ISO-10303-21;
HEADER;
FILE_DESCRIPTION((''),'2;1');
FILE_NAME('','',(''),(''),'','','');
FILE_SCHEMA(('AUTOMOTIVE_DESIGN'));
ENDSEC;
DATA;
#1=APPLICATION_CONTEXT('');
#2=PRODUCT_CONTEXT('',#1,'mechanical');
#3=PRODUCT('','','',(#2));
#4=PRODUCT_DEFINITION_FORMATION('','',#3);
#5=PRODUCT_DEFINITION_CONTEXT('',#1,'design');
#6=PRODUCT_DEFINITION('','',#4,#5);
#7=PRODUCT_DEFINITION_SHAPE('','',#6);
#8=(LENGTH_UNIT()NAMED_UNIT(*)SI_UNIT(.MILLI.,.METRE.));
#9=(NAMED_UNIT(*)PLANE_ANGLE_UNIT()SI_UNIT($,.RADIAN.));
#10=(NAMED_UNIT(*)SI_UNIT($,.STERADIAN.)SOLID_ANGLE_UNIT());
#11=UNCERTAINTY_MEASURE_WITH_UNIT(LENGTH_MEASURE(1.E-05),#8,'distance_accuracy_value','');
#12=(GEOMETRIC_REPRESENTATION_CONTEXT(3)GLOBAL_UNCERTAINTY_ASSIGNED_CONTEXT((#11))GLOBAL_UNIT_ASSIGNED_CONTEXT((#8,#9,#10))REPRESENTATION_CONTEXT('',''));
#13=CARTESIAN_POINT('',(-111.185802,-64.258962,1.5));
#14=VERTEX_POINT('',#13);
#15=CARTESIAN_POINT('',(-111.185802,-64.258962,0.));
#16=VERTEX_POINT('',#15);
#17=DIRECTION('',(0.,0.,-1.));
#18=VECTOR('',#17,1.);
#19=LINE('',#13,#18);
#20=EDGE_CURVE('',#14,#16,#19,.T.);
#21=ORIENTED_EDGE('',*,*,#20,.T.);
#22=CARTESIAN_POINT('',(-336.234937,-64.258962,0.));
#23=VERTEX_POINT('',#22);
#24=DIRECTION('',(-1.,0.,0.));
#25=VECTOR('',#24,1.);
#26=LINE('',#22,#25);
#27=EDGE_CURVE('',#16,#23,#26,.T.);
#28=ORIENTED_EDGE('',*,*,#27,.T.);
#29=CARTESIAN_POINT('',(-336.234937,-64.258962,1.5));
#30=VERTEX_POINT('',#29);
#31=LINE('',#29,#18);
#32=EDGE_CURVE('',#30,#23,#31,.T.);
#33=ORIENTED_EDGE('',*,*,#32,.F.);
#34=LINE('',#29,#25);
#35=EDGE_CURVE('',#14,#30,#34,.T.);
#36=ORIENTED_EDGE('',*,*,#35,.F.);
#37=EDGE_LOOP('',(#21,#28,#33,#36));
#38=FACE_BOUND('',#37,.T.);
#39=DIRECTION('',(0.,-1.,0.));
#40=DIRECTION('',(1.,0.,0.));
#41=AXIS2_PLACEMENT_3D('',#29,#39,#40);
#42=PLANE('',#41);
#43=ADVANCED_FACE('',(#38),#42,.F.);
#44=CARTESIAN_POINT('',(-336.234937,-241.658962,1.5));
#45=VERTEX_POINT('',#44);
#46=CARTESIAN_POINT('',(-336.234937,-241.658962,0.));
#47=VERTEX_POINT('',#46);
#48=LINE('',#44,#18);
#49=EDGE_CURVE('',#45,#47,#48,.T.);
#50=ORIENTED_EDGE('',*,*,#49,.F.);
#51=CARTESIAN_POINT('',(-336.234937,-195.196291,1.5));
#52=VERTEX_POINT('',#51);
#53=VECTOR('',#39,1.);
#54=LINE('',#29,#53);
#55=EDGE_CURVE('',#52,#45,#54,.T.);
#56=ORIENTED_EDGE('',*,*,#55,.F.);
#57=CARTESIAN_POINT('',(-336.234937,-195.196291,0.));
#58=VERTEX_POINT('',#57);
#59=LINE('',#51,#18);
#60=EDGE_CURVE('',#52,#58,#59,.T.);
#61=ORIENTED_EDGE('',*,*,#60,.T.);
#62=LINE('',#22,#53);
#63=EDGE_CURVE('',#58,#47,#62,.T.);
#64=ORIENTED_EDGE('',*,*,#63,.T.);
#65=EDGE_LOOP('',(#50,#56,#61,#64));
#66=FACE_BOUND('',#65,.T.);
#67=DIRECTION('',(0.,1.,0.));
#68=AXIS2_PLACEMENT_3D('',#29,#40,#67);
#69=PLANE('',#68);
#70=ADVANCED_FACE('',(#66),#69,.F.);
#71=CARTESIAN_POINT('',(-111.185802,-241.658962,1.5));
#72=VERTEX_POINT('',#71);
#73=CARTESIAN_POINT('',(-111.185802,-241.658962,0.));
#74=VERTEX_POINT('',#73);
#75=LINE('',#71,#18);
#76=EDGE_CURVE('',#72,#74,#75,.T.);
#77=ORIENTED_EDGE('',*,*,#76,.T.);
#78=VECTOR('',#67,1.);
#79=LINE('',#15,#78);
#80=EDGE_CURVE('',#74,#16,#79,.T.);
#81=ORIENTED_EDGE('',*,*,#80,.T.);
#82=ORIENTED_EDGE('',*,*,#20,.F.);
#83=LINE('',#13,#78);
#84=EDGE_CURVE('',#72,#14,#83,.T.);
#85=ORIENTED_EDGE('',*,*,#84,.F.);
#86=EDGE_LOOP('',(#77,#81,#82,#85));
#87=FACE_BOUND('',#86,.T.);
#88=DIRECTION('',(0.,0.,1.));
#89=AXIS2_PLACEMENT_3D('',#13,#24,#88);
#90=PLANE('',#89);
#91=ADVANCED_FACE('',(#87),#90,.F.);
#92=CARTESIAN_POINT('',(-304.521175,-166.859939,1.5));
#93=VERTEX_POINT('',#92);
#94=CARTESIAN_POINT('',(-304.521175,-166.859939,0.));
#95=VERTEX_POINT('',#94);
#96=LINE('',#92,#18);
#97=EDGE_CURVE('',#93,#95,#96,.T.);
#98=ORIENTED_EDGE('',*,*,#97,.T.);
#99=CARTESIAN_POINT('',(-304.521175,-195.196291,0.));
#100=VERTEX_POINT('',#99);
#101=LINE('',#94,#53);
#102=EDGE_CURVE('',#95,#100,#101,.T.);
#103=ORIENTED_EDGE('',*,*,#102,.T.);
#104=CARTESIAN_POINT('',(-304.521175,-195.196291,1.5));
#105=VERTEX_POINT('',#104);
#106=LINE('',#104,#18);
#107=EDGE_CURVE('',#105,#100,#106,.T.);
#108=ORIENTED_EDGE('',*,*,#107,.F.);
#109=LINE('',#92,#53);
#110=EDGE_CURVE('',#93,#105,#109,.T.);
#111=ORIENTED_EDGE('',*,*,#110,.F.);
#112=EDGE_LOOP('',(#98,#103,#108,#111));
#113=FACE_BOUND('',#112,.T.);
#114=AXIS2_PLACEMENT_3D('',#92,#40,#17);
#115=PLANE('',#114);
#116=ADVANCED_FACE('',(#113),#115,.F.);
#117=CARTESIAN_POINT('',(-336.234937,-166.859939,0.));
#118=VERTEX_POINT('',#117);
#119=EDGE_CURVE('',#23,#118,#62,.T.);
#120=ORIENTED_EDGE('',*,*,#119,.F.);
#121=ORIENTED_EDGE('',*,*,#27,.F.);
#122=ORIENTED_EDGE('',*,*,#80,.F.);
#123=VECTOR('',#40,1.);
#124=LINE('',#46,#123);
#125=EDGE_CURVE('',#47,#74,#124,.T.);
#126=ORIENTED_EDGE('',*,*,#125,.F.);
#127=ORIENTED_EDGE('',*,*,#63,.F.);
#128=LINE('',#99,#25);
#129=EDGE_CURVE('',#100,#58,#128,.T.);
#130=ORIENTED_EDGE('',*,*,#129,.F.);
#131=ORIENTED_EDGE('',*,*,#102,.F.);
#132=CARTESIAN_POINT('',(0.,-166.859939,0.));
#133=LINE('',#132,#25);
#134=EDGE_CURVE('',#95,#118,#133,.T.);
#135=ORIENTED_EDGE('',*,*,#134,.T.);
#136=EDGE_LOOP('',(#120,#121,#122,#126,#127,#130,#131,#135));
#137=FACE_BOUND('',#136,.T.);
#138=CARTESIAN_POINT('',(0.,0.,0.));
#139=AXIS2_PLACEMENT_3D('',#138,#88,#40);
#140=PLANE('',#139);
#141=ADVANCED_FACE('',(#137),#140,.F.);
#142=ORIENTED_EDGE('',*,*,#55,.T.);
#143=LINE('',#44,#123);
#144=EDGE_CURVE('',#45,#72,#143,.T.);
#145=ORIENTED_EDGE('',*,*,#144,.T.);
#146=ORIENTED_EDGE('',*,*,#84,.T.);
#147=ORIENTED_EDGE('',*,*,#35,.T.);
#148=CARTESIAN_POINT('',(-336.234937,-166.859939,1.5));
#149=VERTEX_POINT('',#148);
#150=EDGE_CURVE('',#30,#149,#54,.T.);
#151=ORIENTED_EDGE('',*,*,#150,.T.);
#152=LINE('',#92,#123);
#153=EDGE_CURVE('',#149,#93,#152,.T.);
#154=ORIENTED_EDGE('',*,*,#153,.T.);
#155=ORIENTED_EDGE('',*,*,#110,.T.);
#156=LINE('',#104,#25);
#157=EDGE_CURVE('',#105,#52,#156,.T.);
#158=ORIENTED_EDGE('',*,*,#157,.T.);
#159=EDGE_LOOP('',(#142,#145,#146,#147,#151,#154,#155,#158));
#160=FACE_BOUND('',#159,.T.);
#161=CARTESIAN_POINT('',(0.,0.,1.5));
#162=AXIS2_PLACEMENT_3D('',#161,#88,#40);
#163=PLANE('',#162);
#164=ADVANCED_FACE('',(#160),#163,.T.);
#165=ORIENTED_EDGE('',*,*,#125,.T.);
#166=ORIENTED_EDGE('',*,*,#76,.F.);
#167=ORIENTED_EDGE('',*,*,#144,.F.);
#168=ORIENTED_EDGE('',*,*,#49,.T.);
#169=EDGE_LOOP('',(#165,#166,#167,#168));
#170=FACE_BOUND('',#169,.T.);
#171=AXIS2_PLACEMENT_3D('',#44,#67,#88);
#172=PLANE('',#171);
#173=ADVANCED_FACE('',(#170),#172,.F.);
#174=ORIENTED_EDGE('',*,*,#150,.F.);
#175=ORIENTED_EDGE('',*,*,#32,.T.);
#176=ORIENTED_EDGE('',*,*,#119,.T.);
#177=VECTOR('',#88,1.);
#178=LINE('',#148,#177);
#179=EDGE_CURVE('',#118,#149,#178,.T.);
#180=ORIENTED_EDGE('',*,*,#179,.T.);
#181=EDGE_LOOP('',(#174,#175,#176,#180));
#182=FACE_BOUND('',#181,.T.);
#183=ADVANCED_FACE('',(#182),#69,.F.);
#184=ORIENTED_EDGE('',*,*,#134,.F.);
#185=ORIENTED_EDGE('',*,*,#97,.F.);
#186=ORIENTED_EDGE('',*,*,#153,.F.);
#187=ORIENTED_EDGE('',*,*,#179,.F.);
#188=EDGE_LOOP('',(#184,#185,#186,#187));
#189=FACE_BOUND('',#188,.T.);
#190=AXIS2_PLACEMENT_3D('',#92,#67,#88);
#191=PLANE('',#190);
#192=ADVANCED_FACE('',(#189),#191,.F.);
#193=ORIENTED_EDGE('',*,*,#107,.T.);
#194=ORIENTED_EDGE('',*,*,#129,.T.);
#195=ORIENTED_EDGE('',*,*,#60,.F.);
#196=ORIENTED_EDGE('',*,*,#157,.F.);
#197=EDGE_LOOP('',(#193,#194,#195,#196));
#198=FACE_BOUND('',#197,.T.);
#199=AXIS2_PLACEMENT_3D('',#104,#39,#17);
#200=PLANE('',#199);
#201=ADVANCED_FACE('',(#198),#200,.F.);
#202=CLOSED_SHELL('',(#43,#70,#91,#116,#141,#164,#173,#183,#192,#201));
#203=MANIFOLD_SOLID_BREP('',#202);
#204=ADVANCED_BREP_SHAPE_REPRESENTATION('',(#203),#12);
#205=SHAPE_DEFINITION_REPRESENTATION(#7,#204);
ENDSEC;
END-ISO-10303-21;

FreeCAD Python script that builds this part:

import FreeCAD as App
import Part
import Sketcher
Q = App.Units.Quantity

doc = App.newDocument("Part")
params = doc.addObject("Spreadsheet::Sheet", "Params")
for row, (alias, value) in enumerate([
    ("sketch1_height", "177.4 mm"),
    ("pad1_length", "1.5 mm"),
], start=1):
    params.set(f"A{row}", alias)
    params.set(f"B{row}", "=" + value)
    params.setAlias(f"B{row}", alias)

body = doc.addObject("PartDesign::Body", "Body")

# Sketch on XY plane
sketch1 = body.newObject("Sketcher::SketchObject", "Sketch")
sketch1.AttachmentSupport = (doc.getObject("XY_Plane"), [""])
sketch1.MapMode = "FlatFace"
sketch1.addGeometry([
    Part.LineSegment(App.Vector(-336, -64, 0), App.Vector(-336, -242, 0)),
    Part.LineSegment(App.Vector(-336, -242, 0), App.Vector(-111, -242, 0)),
    Part.LineSegment(App.Vector(-111, -242, 0), App.Vector(-111, -64, 0)),
    Part.LineSegment(App.Vector(-111, -64, 0), App.Vector(-336, -64, 0)),
], False)
sketch1.addConstraint([
    Sketcher.Constraint("Coincident", 0, 2, 1, 1),
    Sketcher.Constraint("Coincident", 1, 2, 2, 1),
    Sketcher.Constraint("Coincident", 2, 2, 3, 1),
    Sketcher.Constraint("Coincident", 3, 2, 0, 1),
    Sketcher.Constraint("Vertical", 0),
    Sketcher.Constraint("Horizontal", 1),
    Sketcher.Constraint("Vertical", 2),
    Sketcher.Constraint("Horizontal", 3),
    Sketcher.Constraint("DistanceY", 0, 2, 0, 1, Q("177.4 mm")),
    Sketcher.Constraint("DistanceX", 1, 1, 1, 2, Q("225.049135 mm")),
    Sketcher.Constraint("DistanceY", 0, 2, -1, 1, Q("241.658962 mm")),
    Sketcher.Constraint("DistanceX", 0, 2, -1, 1, Q("336.234937 mm")),
])
sketch1.setExpression("Constraints[8]", "Params.sketch1_height")
pad1 = body.newObject("PartDesign::Pad", "Pad")
pad1.Profile = sketch1
pad1.setExpression("Length", "Params.pad1_length")

# Sketch on XY plane
sketch2 = body.newObject("Sketcher::SketchObject", "Sketch001")
sketch2.AttachmentSupport = (doc.getObject("XY_Plane"), [""])
sketch2.MapMode = "FlatFace"
sketch2.addGeometry([
    Part.LineSegment(App.Vector(-305, -167, 0), App.Vector(-305, -195, 0)),
    Part.LineSegment(App.Vector(-305, -195, 0), App.Vector(-342, -195, 0)),
    Part.LineSegment(App.Vector(-342, -195, 0), App.Vector(-342, -167, 0)),
    Part.LineSegment(App.Vector(-342, -167, 0), App.Vector(-305, -167, 0)),
], False)
sketch2.addConstraint([
    Sketcher.Constraint("Coincident", 0, 2, 1, 1),
    Sketcher.Constraint("Coincident", 1, 2, 2, 1),
    Sketcher.Constraint("Coincident", 2, 2, 3, 1),
    Sketcher.Constraint("Coincident", 3, 2, 0, 1),
    Sketcher.Constraint("Vertical", 0),
    Sketcher.Constraint("Horizontal", 1),
    Sketcher.Constraint("Vertical", 2),
    Sketcher.Constraint("Horizontal", 3),
    Sketcher.Constraint("DistanceX", 1, 2, 1, 1, Q("37.712351 mm")),
    Sketcher.Constraint("DistanceY", 0, 2, 0, 1, Q("28.336352 mm")),
    Sketcher.Constraint("DistanceY", 0, 2, -1, 1, Q("195.196291 mm")),
    Sketcher.Constraint("DistanceX", 0, 2, -1, 1, Q("304.521175 mm")),
])
pocket1 = body.newObject("PartDesign::Pocket", "Pocket")
pocket1.Profile = sketch2
pocket1.Type = "ThroughAll"
pocket1.Midplane = True

doc.recompute()
